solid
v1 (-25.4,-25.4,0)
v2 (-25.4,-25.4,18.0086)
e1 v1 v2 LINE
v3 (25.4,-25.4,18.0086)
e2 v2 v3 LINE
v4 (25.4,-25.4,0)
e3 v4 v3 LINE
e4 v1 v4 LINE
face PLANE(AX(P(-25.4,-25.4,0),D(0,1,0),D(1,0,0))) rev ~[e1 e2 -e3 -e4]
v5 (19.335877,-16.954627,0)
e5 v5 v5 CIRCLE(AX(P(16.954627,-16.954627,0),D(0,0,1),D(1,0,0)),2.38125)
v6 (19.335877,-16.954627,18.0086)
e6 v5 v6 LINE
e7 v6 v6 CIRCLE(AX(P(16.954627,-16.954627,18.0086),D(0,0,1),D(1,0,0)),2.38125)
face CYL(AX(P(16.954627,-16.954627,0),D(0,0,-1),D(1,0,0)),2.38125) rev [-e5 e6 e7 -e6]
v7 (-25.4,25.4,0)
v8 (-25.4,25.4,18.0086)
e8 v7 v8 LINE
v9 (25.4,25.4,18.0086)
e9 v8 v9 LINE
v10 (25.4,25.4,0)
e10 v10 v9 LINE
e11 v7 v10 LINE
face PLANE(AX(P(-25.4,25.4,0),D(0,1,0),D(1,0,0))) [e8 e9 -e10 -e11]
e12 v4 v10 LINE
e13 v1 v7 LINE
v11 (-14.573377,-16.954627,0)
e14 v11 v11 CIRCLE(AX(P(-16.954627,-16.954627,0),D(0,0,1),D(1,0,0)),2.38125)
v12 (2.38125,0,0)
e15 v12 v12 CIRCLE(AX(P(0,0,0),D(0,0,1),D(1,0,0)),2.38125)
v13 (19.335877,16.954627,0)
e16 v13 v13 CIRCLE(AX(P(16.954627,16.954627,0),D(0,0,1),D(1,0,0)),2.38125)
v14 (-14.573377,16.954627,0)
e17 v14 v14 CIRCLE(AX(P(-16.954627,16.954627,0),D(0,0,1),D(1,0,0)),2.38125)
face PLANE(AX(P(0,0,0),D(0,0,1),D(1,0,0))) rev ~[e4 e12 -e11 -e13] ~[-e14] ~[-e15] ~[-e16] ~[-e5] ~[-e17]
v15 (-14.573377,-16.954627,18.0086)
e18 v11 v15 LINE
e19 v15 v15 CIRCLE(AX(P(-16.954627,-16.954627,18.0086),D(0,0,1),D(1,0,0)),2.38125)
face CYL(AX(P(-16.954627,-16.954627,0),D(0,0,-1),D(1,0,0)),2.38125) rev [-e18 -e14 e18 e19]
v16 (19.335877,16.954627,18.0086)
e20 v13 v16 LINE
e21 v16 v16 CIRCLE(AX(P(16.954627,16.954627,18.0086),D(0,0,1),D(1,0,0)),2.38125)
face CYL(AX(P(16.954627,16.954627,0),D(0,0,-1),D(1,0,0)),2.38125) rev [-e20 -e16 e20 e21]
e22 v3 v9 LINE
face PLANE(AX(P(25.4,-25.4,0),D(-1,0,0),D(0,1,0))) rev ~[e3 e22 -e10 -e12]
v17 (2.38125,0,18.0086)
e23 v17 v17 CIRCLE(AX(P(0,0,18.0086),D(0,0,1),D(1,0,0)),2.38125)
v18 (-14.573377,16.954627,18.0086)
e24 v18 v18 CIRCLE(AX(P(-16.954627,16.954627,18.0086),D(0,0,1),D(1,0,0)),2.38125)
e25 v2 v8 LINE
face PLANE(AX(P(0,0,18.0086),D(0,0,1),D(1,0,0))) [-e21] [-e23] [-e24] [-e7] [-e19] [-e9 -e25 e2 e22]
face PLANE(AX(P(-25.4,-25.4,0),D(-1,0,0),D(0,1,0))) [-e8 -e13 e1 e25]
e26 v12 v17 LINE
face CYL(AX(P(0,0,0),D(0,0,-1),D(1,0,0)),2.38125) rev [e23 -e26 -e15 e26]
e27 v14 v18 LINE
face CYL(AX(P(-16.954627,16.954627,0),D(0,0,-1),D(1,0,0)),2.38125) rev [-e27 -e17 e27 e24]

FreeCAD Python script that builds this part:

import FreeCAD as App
import Part
import Sketcher
Q = App.Units.Quantity


def add_polygon(sketch, points):
    """Adds a closed chain of lines whose ends are joined by coincident constraints."""
    first, n = sketch.GeometryCount, len(points)
    for a, b in zip(points, points[1:] + points[:1]):
        sketch.addGeometry(Part.LineSegment(App.Vector(*a, 0), App.Vector(*b, 0)), False)
    for i in range(n):
        sketch.addConstraint(Sketcher.Constraint("Coincident", first + i, 2, first + (i + 1) % n, 1))

doc = App.newDocument("Part")
params = doc.addObject("Spreadsheet::Sheet", "Params")
for row, (alias, value) in enumerate([
    ("sketch1_width", "2 in"),
    ("sketch1_diameter", "0.1875 in"),
    ("pad1_length", "0.709 in"),
], start=1):
    params.set(f"A{row}", alias)
    params.set(f"B{row}", "=" + value)
    params.setAlias(f"B{row}", alias)

body = doc.addObject("PartDesign::Body", "Body")

# Sketch on XY plane
sketch1 = doc.addObject("Sketcher::SketchObject", "Sketch")
body.addObject(sketch1)
sketch1.AttachmentSupport = (doc.XY_Plane, [""])
sketch1.MapMode = "FlatFace"
add_polygon(sketch1, [(-25.4, 25.4), (-25.4, -25.4), (25.4, -25.4), (25.4, 25.4)])  # lines 0-3
sketch1.addGeometry(Part.Circle(App.Vector(-17, -17, 0), App.Vector(0, 0, 1), 2.4), False)  # 4
sketch1.addGeometry(Part.Circle(App.Vector(17, -17, 0), App.Vector(0, 0, 1), 2.4), False)  # 5
sketch1.addGeometry(Part.Circle(App.Vector(0, 0, 0), App.Vector(0, 0, 1), 2.4), False)  # 6
sketch1.addGeometry(Part.Circle(App.Vector(-17, 17, 0), App.Vector(0, 0, 1), 2.4), False)  # 7
sketch1.addGeometry(Part.Circle(App.Vector(17, 17, 0), App.Vector(0, 0, 1), 2.4), False)  # 8
sketch1.addConstraint([
    Sketcher.Constraint("Vertical", 0),
    Sketcher.Constraint("Horizontal", 1),
    Sketcher.Constraint("Vertical", 2),
    Sketcher.Constraint("Horizontal", 3),
    Sketcher.Constraint("Coincident", 6, 3, -1, 1),
    Sketcher.Constraint("Equal", 4, 5),
    Sketcher.Constraint("Equal", 5, 6),
    Sketcher.Constraint("Equal", 6, 7),
    Sketcher.Constraint("Equal", 7, 8),
    Sketcher.Constraint("Symmetric", 5, 3, 7, 3, -1, 1),
    Sketcher.Constraint("Symmetric", 4, 3, 8, 3, -1, 1),
    Sketcher.Constraint("Symmetric", 0, 2, 2, 2, -1, 1),
    Sketcher.Constraint("Symmetric", 4, 3, 5, 3, -2),
    Sketcher.Constraint("Equal", 3, 0),
    Sketcher.Constraint("DistanceX", 1, 1, 1, 2, Q("2 in")),
    Sketcher.Constraint("Diameter", 4, Q("0.1875 in")),
    Sketcher.Constraint("DistanceX", 4, 3, -1, 1, Q("16.954627 mm")),
    Sketcher.Constraint("DistanceY", 4, 3, -1, 1, Q("16.954627 mm")),
])
sketch1.setExpression("Constraints[18]", "Params.sketch1_width")
sketch1.setExpression("Constraints[19]", "Params.sketch1_diameter")
pad1 = doc.addObject("PartDesign::Pad", "Pad")
body.addObject(pad1)
pad1.Profile = sketch1
pad1.setExpression("Length", "Params.pad1_length")

doc.recompute()
